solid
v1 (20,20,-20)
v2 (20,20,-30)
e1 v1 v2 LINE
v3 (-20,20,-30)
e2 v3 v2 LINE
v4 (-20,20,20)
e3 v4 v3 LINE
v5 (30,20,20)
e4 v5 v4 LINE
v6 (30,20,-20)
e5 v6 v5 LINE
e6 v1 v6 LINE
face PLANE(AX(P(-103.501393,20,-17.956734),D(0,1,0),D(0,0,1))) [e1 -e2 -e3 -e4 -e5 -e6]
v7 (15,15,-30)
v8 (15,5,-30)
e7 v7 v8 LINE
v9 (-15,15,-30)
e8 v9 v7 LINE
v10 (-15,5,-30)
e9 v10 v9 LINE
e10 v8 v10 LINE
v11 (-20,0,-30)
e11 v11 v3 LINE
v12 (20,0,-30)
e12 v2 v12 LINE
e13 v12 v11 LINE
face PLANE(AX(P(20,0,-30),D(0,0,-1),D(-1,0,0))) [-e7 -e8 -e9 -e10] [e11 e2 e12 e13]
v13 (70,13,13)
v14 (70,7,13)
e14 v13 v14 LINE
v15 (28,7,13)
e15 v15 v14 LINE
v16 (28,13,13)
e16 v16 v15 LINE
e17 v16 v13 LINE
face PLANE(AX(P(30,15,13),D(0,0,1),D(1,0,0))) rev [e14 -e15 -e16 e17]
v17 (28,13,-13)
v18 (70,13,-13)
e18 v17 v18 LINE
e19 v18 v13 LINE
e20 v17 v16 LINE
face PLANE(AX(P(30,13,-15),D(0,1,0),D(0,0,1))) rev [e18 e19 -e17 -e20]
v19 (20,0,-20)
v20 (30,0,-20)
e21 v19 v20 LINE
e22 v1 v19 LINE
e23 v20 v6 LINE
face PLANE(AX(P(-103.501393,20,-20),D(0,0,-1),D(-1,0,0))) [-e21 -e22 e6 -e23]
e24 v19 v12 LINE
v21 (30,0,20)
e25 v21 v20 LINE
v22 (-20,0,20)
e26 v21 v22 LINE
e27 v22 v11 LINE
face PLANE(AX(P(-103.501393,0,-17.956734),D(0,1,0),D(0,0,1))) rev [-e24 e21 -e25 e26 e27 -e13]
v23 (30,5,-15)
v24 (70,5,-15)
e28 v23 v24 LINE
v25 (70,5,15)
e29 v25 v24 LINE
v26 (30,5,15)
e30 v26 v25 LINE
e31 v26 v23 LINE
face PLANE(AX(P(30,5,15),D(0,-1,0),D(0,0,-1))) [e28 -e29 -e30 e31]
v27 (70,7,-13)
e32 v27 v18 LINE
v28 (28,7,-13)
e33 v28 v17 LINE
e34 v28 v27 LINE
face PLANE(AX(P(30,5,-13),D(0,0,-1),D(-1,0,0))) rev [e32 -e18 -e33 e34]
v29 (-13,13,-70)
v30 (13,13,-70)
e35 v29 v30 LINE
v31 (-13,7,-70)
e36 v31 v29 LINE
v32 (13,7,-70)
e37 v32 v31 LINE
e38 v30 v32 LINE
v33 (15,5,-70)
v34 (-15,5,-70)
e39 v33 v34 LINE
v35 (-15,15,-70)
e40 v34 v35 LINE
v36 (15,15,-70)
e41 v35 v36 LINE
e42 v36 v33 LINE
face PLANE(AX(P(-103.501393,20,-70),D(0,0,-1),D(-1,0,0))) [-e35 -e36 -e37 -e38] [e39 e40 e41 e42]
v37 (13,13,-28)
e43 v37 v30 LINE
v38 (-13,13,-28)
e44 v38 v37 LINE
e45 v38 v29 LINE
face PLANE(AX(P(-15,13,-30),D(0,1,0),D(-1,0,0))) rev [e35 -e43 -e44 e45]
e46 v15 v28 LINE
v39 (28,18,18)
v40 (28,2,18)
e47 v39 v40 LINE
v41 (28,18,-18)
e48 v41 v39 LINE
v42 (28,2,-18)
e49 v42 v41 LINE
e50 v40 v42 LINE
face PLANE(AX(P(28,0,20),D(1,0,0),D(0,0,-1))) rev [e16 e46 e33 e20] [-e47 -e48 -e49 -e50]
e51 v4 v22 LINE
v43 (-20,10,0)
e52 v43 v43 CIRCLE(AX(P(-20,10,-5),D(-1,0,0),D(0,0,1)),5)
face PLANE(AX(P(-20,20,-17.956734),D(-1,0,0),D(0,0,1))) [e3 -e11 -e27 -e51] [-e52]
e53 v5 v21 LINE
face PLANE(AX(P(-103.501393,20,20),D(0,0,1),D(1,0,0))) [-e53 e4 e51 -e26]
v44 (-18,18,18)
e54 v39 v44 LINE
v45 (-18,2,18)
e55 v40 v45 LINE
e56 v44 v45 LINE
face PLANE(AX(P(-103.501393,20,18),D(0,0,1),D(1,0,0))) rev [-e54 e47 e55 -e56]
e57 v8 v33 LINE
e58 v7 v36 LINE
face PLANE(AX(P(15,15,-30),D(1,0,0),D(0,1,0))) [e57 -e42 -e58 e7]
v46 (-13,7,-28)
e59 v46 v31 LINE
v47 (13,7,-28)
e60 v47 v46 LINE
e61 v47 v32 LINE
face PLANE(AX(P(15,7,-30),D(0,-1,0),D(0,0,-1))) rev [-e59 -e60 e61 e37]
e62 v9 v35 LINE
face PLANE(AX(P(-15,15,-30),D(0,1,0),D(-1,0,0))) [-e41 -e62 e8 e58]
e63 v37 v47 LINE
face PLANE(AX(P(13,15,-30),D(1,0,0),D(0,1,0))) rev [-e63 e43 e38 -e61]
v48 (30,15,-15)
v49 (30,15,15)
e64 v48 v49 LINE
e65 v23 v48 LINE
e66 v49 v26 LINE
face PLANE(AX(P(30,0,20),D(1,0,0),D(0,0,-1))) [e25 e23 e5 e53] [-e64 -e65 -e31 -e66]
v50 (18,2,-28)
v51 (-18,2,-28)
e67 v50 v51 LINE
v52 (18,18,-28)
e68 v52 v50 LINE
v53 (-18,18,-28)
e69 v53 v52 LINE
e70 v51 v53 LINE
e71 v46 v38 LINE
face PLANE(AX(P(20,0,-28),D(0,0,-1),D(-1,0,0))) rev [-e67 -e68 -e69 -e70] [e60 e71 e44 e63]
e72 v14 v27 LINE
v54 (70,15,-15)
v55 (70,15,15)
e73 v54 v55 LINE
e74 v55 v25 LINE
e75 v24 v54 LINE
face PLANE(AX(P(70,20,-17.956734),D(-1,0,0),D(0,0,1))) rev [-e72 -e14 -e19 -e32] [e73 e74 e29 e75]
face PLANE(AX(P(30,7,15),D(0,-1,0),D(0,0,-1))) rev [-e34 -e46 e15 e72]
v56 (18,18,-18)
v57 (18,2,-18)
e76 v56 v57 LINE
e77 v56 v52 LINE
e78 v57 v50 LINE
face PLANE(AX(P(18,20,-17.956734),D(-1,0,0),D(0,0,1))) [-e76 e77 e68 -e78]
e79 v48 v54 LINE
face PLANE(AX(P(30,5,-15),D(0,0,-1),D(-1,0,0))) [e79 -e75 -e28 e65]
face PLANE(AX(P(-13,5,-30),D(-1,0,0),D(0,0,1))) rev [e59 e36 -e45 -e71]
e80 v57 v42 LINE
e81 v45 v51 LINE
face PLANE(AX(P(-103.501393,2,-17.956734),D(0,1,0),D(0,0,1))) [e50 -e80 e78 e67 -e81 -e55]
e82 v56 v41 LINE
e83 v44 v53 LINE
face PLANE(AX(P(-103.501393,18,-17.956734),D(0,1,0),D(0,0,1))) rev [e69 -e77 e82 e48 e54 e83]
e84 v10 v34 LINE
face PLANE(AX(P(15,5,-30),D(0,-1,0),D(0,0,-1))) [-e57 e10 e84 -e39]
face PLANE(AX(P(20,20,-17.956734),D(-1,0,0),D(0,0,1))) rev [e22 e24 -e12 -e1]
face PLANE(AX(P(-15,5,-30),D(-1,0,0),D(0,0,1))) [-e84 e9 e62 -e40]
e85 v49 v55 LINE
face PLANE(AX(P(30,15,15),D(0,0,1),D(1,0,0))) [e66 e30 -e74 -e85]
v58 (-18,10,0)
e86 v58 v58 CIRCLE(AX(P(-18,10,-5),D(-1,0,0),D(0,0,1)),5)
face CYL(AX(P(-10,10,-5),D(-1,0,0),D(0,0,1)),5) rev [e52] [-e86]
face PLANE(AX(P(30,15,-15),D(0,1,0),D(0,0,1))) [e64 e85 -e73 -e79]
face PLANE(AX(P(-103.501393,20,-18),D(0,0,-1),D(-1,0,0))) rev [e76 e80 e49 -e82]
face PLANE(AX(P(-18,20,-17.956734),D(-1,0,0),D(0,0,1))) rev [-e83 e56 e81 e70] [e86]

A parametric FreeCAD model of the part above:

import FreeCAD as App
import Part
import Sketcher
from FreeCAD import Vector
Q = App.Units.Quantity


def faces_at(feature, points):
    """Names of the faces that lie closest to the given points."""
    faces = feature.Shape.Faces
    near = lambda p: min(range(len(faces)), key=lambda i: faces[i].distToShape(Part.Vertex(*p))[0])
    return sorted({f"Face{near(p) + 1}" for p in points})

doc = App.newDocument("Part")
body = doc.addObject("PartDesign::Body", "Body")

sketch1 = body.newObject("Sketcher::SketchObject", "Sketch")
sketch1.AttachmentSupport = (doc.getObject("XZ_Plane"), [""])
sketch1.MapMode = "FlatFace"
sketch1.addGeometry([
    Part.LineSegment(Vector(-20, -70, 0), Vector(-20, 20, 0)),
    Part.LineSegment(Vector(-20, 20, 0), Vector(70, 20, 0)),
    Part.LineSegment(Vector(70, 20, 0), Vector(70, -20, 0)),
    Part.LineSegment(Vector(70, -20, 0), Vector(20, -20, 0)),
    Part.LineSegment(Vector(20, -20, 0), Vector(20, -70, 0)),
    Part.LineSegment(Vector(20, -70, 0), Vector(-20, -70, 0)),
], False)
sketch1.addConstraint([
    Sketcher.Constraint("Coincident", 0, 2, 1, 1),
    Sketcher.Constraint("Coincident", 1, 2, 2, 1),
    Sketcher.Constraint("Coincident", 2, 2, 3, 1),
    Sketcher.Constraint("Coincident", 3, 2, 4, 1),
    Sketcher.Constraint("Coincident", 4, 2, 5, 1),
    Sketcher.Constraint("Coincident", 5, 2, 0, 1),
    Sketcher.Constraint("Vertical", 0),
    Sketcher.Constraint("Horizontal", 1),
    Sketcher.Constraint("Vertical", 2),
    Sketcher.Constraint("Horizontal", 3),
    Sketcher.Constraint("Vertical", 4),
    Sketcher.Constraint("Horizontal", 5),
    Sketcher.Constraint("Symmetric", 0, 2, 3, 2, -1, 1),
    Sketcher.Constraint("Equal", 1, 0),
    Sketcher.Constraint("Equal", 5, 2),
    Sketcher.Constraint("DistanceX", 1, 1, 1, 2, Q("90 mm")),
    Sketcher.Constraint("DistanceX", 3, 2, 3, 1, Q("50 mm")),
])
pad1 = body.newObject("PartDesign::Pad", "Pad")
pad1.Profile = sketch1
pad1.Length = 20
pad1.Reversed = True

sketch2 = body.newObject("Sketcher::SketchObject", "Sketch001")
sketch2.AttachmentSupport = (doc.getObject("YZ_Plane"), [""])
sketch2.MapMode = "FlatFace"
sketch2.AttachmentOffset = App.Placement(Vector(0, 0, 70), App.Rotation())
sketch2.addGeometry([
    Part.LineSegment(Vector(20, 20, 0), Vector(0, 20, 0)),
    Part.LineSegment(Vector(0, 20, 0), Vector(0, -20, 0)),
    Part.LineSegment(Vector(0, -20, 0), Vector(20, -20, 0)),
    Part.LineSegment(Vector(20, -20, 0), Vector(20, 20, 0)),
    Part.LineSegment(Vector(5, -15, 0), Vector(5, 15, 0)),
    Part.LineSegment(Vector(5, 15, 0), Vector(15, 15, 0)),
    Part.LineSegment(Vector(15, 15, 0), Vector(15, -15, 0)),
    Part.LineSegment(Vector(15, -15, 0), Vector(5, -15, 0)),
], False)
sketch2.addConstraint([
    Sketcher.Constraint("Coincident", 0, 2, 1, 1),
    Sketcher.Constraint("Coincident", 1, 2, 2, 1),
    Sketcher.Constraint("Coincident", 2, 2, 3, 1),
    Sketcher.Constraint("Coincident", 3, 2, 0, 1),
    Sketcher.Constraint("Coincident", 4, 2, 5, 1),
    Sketcher.Constraint("Coincident", 5, 2, 6, 1),
    Sketcher.Constraint("Coincident", 6, 2, 7, 1),
    Sketcher.Constraint("Coincident", 7, 2, 4, 1),
    Sketcher.Constraint("Horizontal", 0),
    Sketcher.Constraint("Vertical", 1),
    Sketcher.Constraint("Horizontal", 2),
    Sketcher.Constraint("Vertical", 3),
    Sketcher.Constraint("Vertical", 4),
    Sketcher.Constraint("Horizontal", 5),
    Sketcher.Constraint("Vertical", 6),
    Sketcher.Constraint("Horizontal", 7),
    Sketcher.Constraint("Symmetric", 0, 2, 1, 2, -1, 1),
    Sketcher.Constraint("DistanceX", 0, 2, 0, 1, Q("20 mm")),
    Sketcher.Constraint("DistanceX", 5, 1, 5, 2, Q("10 mm")),
    Sketcher.Constraint("DistanceY", 1, 2, 1, 1, Q("40 mm")),
    Sketcher.Constraint("DistanceY", 4, 1, 4, 2, Q("30 mm")),
    Sketcher.Constraint("DistanceX", -1, 1, 4, 2, Q("5 mm")),
    Sketcher.Constraint("DistanceY", -1, 1, 4, 2, Q("15 mm")),
])
pocket1 = body.newObject("PartDesign::Pocket", "Pocket")
pocket1.Profile = sketch2
pocket1.Length = 40

sketch3 = body.newObject("Sketcher::SketchObject", "Sketch002")
sketch3.AttachmentSupport = (doc.getObject("XY_Plane"), [""])
sketch3.MapMode = "FlatFace"
sketch3.AttachmentOffset = App.Placement(Vector(0, 0, -70), App.Rotation())
sketch3.addGeometry([
    Part.LineSegment(Vector(20, 20, 0), Vector(20, 0, 0)),
    Part.LineSegment(Vector(20, 0, 0), Vector(-20, 0, 0)),
    Part.LineSegment(Vector(-20, 0, 0), Vector(-20, 20, 0)),
    Part.LineSegment(Vector(-20, 20, 0), Vector(20, 20, 0)),
    Part.LineSegment(Vector(-15, 5, 0), Vector(15, 5, 0)),
    Part.LineSegment(Vector(15, 5, 0), Vector(15, 15, 0)),
    Part.LineSegment(Vector(15, 15, 0), Vector(-15, 15, 0)),
    Part.LineSegment(Vector(-15, 15, 0), Vector(-15, 5, 0)),
], False)
sketch3.addConstraint([
    Sketcher.Constraint("Coincident", 0, 2, 1, 1),
    Sketcher.Constraint("Coincident", 1, 2, 2, 1),
    Sketcher.Constraint("Coincident", 2, 2, 3, 1),
    Sketcher.Constraint("Coincident", 3, 2, 0, 1),
    Sketcher.Constraint("Coincident", 4, 2, 5, 1),
    Sketcher.Constraint("Coincident", 5, 2, 6, 1),
    Sketcher.Constraint("Coincident", 6, 2, 7, 1),
    Sketcher.Constraint("Coincident", 7, 2, 4, 1),
    Sketcher.Constraint("Vertical", 0),
    Sketcher.Constraint("Horizontal", 1),
    Sketcher.Constraint("Vertical", 2),
    Sketcher.Constraint("Horizontal", 3),
    Sketcher.Constraint("Horizontal", 4),
    Sketcher.Constraint("Vertical", 5),
    Sketcher.Constraint("Horizontal", 6),
    Sketcher.Constraint("Vertical", 7),
    Sketcher.Constraint("Symmetric", 0, 2, 1, 2, -1, 1),
    Sketcher.Constraint("DistanceX", 1, 2, 1, 1, Q("40 mm")),
    Sketcher.Constraint("DistanceX", 4, 1, 4, 2, Q("30 mm")),
    Sketcher.Constraint("DistanceY", 0, 2, 0, 1, Q("20 mm")),
    Sketcher.Constraint("DistanceY", 5, 1, 5, 2, Q("10 mm")),
    Sketcher.Constraint("DistanceX", -1, 1, 4, 2, Q("15 mm")),
    Sketcher.Constraint("DistanceY", -1, 1, 4, 2, Q("5 mm")),
])
pocket2 = body.newObject("PartDesign::Pocket", "Pocket001")
pocket2.Profile = sketch3
pocket2.Length = 40
pocket2.Reversed = True
doc.recompute()

thickness = body.newObject("PartDesign::Thickness", "Thickness")
thickness.Base = (pocket2, faces_at(pocket2, [(70, 10, 0), (0, 10, -70)]))
thickness.Value = 2
thickness.Reversed = True
thickness.Join = "Intersection"

sketch4 = body.newObject("Sketcher::SketchObject", "Sketch003")
sketch4.AttachmentSupport = (doc.getObject("YZ_Plane"), [""])
sketch4.MapMode = "FlatFace"
sketch4.AttachmentOffset = App.Placement(Vector(0, 0, -20), App.Rotation())
sketch4.addGeometry(Part.Circle(Vector(10, -5, 0), Vector(0, 0, 1), 5), False)
sketch4.addConstraint([
    Sketcher.Constraint("Diameter", 0, Q("10 mm")),
    Sketcher.Constraint("DistanceX", -1, 1, 0, 3, Q("10 mm")),
    Sketcher.Constraint("DistanceY", 0, 3, -1, 1, Q("5 mm")),
])
pocket3 = body.newObject("PartDesign::Pocket", "Pocket002")
pocket3.Profile = sketch4
pocket3.Length = 10
pocket3.Reversed = True

doc.recompute()
